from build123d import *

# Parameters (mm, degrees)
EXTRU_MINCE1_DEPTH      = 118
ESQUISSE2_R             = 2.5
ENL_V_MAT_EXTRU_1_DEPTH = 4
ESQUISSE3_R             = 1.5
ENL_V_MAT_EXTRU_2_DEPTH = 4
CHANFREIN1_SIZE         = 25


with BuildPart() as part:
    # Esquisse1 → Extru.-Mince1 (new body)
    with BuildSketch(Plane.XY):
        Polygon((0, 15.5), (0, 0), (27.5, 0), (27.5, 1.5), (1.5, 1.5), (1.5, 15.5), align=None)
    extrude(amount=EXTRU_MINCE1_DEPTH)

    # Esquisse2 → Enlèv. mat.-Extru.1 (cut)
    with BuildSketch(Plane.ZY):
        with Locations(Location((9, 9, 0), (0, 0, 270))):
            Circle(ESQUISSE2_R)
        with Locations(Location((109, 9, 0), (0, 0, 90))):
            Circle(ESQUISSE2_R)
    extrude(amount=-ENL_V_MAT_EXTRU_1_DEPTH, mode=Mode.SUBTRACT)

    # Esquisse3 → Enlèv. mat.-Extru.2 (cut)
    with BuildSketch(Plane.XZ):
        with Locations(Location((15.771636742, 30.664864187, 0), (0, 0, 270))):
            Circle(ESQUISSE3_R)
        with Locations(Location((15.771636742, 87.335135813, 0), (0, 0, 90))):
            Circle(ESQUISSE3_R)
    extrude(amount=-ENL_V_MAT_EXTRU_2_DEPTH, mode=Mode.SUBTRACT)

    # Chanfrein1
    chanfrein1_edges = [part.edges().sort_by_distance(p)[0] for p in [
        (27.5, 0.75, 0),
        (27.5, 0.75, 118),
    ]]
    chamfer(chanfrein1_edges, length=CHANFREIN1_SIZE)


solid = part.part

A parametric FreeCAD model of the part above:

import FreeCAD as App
import Part
import Sketcher
from FreeCAD import Vector


def edges_at(feature, points):
    """Names of the edges that pass closest to the given points."""
    edges = feature.Shape.Edges
    near = lambda p: min(range(len(edges)), key=lambda i: edges[i].distToShape(Part.Vertex(*p))[0])
    return sorted({f"Edge{near(p) + 1}" for p in points})


def add_polygon(sketch, points):
    """Adds a closed chain of lines whose ends are joined by coincident constraints."""
    first, n = sketch.GeometryCount, len(points)
    for a, b in zip(points, points[1:] + points[:1]):
        sketch.addGeometry(Part.LineSegment(App.Vector(*a, 0), App.Vector(*b, 0)), False)
    for i in range(n):
        sketch.addConstraint(Sketcher.Constraint("Coincident", first + i, 2, first + (i + 1) % n, 1))

doc = App.newDocument("Part")
params = doc.addObject("Spreadsheet::Sheet", "Params")
for row, (alias, value) in enumerate([
    ("sketch1_width", "26 mm"),
    ("sketch1_height", "14 mm"),
    ("sketch1_width2", "27.5 mm"),
    ("pad1_length", "118 mm"),
    ("sketch2_diameter", "5 mm"),
    ("pocket1_length", "4 mm"),
    ("sketch3_diameter", "3 mm"),
    ("pocket2_length", "4 mm"),
    ("chamfer_size", "25 mm"),
], start=1):
    params.set(f"A{row}", alias)
    params.set(f"B{row}", "=" + value)
    params.setAlias(f"B{row}", alias)

body = doc.addObject("PartDesign::Body", "Body")

sketch1 = doc.addObject("Sketcher::SketchObject", "Sketch")
body.addObject(sketch1)
sketch1.AttachmentSupport = (doc.XY_Plane, [""])
sketch1.MapMode = "FlatFace"
add_polygon(sketch1, [(0, 15.5), (0, 0), (27.5, 0), (27.5, 1.5), (1.5, 1.5), (1.5, 15.5)])
sketch1.addConstraint(Sketcher.Constraint("Vertical", 0))
sketch1.addConstraint(Sketcher.Constraint("Horizontal", 1))
sketch1.addConstraint(Sketcher.Constraint("Vertical", 2))
sketch1.addConstraint(Sketcher.Constraint("Horizontal", 3))
sketch1.addConstraint(Sketcher.Constraint("Vertical", 4))
sketch1.addConstraint(Sketcher.Constraint("Horizontal", 5))
sketch1.addConstraint(Sketcher.Constraint("Coincident", 0, 2, -1, 1))
sketch1.addConstraint(Sketcher.Constraint("Equal", 5, 2))
sketch1.addConstraint(Sketcher.Constraint("DistanceX", 3, 2, 3, 1, 26.0))
sketch1.addConstraint(Sketcher.Constraint("DistanceY", 4, 1, 4, 2, 14.0))
sketch1.addConstraint(Sketcher.Constraint("DistanceX", 1, 1, 1, 2, 27.5))
sketch1.setExpression("Constraints[14]", "Params.sketch1_width")
sketch1.setExpression("Constraints[15]", "Params.sketch1_height")
sketch1.setExpression("Constraints[16]", "Params.sketch1_width2")
pad1 = doc.addObject("PartDesign::Pad", "Pad")
body.addObject(pad1)
pad1.Profile = sketch1
pad1.setExpression("Length", "Params.pad1_length")

sketch2 = doc.addObject("Sketcher::SketchObject", "Sketch001")
body.addObject(sketch2)
sketch2.AttachmentSupport = (doc.YZ_Plane, [""])
sketch2.MapMode = "FlatFace"
sketch2.addGeometry(Part.Circle(Vector(9, 9, 0), Vector(0, 0, 1), 2.5), False)
sketch2.addGeometry(Part.Circle(Vector(9, 109, 0), Vector(0, 0, 1), 2.5), False)
sketch2.addConstraint(Sketcher.Constraint("Equal", 0, 1))
sketch2.addConstraint(Sketcher.Constraint("Vertical", 0, 3, 1, 3))
sketch2.addConstraint(Sketcher.Constraint("Diameter", 0, 5.0))
sketch2.addConstraint(Sketcher.Constraint("DistanceX", -1, 1, 0, 3, 9.0))
sketch2.addConstraint(Sketcher.Constraint("DistanceY", -1, 1, 0, 3, 9.0))
sketch2.addConstraint(Sketcher.Constraint("DistanceY", -1, 1, 1, 3, 109.0))
sketch2.setExpression("Constraints[2]", "Params.sketch2_diameter")
pocket1 = doc.addObject("PartDesign::Pocket", "Pocket")
body.addObject(pocket1)
pocket1.Profile = sketch2
pocket1.setExpression("Length", "Params.pocket1_length")
pocket1.Reversed = True

sketch3 = doc.addObject("Sketcher::SketchObject", "Sketch002")
body.addObject(sketch3)
sketch3.AttachmentSupport = (doc.XZ_Plane, [""])
sketch3.MapMode = "FlatFace"
sketch3.addGeometry(Part.Circle(Vector(15.8, 30.7, 0), Vector(0, 0, 1), 1.5), False)
sketch3.addGeometry(Part.Circle(Vector(15.8, 87.3, 0), Vector(0, 0, 1), 1.5), False)
sketch3.addConstraint(Sketcher.Constraint("Equal", 0, 1))
sketch3.addConstraint(Sketcher.Constraint("Vertical", 0, 3, 1, 3))
sketch3.addConstraint(Sketcher.Constraint("Diameter", 0, 3.0))
sketch3.addConstraint(Sketcher.Constraint("DistanceY", 0, 3, 1, 3, 56.670272))
sketch3.addConstraint(Sketcher.Constraint("DistanceX", -1, 1, 0, 3, 15.771637))
sketch3.addConstraint(Sketcher.Constraint("DistanceY", -1, 1, 0, 3, 30.664864))
sketch3.setExpression("Constraints[2]", "Params.sketch3_diameter")
pocket2 = doc.addObject("PartDesign::Pocket", "Pocket001")
body.addObject(pocket2)
pocket2.Profile = sketch3
pocket2.setExpression("Length", "Params.pocket2_length")
doc.recompute()

chamfer = doc.addObject("PartDesign::Chamfer", "Chamfer")
body.addObject(chamfer)
chamfer.Base = (pocket2, edges_at(pocket2, [(27.5, 0.75, 0), (27.5, 0.75, 118)]))
chamfer.setExpression("Size", "Params.chamfer_size")

doc.recompute()
